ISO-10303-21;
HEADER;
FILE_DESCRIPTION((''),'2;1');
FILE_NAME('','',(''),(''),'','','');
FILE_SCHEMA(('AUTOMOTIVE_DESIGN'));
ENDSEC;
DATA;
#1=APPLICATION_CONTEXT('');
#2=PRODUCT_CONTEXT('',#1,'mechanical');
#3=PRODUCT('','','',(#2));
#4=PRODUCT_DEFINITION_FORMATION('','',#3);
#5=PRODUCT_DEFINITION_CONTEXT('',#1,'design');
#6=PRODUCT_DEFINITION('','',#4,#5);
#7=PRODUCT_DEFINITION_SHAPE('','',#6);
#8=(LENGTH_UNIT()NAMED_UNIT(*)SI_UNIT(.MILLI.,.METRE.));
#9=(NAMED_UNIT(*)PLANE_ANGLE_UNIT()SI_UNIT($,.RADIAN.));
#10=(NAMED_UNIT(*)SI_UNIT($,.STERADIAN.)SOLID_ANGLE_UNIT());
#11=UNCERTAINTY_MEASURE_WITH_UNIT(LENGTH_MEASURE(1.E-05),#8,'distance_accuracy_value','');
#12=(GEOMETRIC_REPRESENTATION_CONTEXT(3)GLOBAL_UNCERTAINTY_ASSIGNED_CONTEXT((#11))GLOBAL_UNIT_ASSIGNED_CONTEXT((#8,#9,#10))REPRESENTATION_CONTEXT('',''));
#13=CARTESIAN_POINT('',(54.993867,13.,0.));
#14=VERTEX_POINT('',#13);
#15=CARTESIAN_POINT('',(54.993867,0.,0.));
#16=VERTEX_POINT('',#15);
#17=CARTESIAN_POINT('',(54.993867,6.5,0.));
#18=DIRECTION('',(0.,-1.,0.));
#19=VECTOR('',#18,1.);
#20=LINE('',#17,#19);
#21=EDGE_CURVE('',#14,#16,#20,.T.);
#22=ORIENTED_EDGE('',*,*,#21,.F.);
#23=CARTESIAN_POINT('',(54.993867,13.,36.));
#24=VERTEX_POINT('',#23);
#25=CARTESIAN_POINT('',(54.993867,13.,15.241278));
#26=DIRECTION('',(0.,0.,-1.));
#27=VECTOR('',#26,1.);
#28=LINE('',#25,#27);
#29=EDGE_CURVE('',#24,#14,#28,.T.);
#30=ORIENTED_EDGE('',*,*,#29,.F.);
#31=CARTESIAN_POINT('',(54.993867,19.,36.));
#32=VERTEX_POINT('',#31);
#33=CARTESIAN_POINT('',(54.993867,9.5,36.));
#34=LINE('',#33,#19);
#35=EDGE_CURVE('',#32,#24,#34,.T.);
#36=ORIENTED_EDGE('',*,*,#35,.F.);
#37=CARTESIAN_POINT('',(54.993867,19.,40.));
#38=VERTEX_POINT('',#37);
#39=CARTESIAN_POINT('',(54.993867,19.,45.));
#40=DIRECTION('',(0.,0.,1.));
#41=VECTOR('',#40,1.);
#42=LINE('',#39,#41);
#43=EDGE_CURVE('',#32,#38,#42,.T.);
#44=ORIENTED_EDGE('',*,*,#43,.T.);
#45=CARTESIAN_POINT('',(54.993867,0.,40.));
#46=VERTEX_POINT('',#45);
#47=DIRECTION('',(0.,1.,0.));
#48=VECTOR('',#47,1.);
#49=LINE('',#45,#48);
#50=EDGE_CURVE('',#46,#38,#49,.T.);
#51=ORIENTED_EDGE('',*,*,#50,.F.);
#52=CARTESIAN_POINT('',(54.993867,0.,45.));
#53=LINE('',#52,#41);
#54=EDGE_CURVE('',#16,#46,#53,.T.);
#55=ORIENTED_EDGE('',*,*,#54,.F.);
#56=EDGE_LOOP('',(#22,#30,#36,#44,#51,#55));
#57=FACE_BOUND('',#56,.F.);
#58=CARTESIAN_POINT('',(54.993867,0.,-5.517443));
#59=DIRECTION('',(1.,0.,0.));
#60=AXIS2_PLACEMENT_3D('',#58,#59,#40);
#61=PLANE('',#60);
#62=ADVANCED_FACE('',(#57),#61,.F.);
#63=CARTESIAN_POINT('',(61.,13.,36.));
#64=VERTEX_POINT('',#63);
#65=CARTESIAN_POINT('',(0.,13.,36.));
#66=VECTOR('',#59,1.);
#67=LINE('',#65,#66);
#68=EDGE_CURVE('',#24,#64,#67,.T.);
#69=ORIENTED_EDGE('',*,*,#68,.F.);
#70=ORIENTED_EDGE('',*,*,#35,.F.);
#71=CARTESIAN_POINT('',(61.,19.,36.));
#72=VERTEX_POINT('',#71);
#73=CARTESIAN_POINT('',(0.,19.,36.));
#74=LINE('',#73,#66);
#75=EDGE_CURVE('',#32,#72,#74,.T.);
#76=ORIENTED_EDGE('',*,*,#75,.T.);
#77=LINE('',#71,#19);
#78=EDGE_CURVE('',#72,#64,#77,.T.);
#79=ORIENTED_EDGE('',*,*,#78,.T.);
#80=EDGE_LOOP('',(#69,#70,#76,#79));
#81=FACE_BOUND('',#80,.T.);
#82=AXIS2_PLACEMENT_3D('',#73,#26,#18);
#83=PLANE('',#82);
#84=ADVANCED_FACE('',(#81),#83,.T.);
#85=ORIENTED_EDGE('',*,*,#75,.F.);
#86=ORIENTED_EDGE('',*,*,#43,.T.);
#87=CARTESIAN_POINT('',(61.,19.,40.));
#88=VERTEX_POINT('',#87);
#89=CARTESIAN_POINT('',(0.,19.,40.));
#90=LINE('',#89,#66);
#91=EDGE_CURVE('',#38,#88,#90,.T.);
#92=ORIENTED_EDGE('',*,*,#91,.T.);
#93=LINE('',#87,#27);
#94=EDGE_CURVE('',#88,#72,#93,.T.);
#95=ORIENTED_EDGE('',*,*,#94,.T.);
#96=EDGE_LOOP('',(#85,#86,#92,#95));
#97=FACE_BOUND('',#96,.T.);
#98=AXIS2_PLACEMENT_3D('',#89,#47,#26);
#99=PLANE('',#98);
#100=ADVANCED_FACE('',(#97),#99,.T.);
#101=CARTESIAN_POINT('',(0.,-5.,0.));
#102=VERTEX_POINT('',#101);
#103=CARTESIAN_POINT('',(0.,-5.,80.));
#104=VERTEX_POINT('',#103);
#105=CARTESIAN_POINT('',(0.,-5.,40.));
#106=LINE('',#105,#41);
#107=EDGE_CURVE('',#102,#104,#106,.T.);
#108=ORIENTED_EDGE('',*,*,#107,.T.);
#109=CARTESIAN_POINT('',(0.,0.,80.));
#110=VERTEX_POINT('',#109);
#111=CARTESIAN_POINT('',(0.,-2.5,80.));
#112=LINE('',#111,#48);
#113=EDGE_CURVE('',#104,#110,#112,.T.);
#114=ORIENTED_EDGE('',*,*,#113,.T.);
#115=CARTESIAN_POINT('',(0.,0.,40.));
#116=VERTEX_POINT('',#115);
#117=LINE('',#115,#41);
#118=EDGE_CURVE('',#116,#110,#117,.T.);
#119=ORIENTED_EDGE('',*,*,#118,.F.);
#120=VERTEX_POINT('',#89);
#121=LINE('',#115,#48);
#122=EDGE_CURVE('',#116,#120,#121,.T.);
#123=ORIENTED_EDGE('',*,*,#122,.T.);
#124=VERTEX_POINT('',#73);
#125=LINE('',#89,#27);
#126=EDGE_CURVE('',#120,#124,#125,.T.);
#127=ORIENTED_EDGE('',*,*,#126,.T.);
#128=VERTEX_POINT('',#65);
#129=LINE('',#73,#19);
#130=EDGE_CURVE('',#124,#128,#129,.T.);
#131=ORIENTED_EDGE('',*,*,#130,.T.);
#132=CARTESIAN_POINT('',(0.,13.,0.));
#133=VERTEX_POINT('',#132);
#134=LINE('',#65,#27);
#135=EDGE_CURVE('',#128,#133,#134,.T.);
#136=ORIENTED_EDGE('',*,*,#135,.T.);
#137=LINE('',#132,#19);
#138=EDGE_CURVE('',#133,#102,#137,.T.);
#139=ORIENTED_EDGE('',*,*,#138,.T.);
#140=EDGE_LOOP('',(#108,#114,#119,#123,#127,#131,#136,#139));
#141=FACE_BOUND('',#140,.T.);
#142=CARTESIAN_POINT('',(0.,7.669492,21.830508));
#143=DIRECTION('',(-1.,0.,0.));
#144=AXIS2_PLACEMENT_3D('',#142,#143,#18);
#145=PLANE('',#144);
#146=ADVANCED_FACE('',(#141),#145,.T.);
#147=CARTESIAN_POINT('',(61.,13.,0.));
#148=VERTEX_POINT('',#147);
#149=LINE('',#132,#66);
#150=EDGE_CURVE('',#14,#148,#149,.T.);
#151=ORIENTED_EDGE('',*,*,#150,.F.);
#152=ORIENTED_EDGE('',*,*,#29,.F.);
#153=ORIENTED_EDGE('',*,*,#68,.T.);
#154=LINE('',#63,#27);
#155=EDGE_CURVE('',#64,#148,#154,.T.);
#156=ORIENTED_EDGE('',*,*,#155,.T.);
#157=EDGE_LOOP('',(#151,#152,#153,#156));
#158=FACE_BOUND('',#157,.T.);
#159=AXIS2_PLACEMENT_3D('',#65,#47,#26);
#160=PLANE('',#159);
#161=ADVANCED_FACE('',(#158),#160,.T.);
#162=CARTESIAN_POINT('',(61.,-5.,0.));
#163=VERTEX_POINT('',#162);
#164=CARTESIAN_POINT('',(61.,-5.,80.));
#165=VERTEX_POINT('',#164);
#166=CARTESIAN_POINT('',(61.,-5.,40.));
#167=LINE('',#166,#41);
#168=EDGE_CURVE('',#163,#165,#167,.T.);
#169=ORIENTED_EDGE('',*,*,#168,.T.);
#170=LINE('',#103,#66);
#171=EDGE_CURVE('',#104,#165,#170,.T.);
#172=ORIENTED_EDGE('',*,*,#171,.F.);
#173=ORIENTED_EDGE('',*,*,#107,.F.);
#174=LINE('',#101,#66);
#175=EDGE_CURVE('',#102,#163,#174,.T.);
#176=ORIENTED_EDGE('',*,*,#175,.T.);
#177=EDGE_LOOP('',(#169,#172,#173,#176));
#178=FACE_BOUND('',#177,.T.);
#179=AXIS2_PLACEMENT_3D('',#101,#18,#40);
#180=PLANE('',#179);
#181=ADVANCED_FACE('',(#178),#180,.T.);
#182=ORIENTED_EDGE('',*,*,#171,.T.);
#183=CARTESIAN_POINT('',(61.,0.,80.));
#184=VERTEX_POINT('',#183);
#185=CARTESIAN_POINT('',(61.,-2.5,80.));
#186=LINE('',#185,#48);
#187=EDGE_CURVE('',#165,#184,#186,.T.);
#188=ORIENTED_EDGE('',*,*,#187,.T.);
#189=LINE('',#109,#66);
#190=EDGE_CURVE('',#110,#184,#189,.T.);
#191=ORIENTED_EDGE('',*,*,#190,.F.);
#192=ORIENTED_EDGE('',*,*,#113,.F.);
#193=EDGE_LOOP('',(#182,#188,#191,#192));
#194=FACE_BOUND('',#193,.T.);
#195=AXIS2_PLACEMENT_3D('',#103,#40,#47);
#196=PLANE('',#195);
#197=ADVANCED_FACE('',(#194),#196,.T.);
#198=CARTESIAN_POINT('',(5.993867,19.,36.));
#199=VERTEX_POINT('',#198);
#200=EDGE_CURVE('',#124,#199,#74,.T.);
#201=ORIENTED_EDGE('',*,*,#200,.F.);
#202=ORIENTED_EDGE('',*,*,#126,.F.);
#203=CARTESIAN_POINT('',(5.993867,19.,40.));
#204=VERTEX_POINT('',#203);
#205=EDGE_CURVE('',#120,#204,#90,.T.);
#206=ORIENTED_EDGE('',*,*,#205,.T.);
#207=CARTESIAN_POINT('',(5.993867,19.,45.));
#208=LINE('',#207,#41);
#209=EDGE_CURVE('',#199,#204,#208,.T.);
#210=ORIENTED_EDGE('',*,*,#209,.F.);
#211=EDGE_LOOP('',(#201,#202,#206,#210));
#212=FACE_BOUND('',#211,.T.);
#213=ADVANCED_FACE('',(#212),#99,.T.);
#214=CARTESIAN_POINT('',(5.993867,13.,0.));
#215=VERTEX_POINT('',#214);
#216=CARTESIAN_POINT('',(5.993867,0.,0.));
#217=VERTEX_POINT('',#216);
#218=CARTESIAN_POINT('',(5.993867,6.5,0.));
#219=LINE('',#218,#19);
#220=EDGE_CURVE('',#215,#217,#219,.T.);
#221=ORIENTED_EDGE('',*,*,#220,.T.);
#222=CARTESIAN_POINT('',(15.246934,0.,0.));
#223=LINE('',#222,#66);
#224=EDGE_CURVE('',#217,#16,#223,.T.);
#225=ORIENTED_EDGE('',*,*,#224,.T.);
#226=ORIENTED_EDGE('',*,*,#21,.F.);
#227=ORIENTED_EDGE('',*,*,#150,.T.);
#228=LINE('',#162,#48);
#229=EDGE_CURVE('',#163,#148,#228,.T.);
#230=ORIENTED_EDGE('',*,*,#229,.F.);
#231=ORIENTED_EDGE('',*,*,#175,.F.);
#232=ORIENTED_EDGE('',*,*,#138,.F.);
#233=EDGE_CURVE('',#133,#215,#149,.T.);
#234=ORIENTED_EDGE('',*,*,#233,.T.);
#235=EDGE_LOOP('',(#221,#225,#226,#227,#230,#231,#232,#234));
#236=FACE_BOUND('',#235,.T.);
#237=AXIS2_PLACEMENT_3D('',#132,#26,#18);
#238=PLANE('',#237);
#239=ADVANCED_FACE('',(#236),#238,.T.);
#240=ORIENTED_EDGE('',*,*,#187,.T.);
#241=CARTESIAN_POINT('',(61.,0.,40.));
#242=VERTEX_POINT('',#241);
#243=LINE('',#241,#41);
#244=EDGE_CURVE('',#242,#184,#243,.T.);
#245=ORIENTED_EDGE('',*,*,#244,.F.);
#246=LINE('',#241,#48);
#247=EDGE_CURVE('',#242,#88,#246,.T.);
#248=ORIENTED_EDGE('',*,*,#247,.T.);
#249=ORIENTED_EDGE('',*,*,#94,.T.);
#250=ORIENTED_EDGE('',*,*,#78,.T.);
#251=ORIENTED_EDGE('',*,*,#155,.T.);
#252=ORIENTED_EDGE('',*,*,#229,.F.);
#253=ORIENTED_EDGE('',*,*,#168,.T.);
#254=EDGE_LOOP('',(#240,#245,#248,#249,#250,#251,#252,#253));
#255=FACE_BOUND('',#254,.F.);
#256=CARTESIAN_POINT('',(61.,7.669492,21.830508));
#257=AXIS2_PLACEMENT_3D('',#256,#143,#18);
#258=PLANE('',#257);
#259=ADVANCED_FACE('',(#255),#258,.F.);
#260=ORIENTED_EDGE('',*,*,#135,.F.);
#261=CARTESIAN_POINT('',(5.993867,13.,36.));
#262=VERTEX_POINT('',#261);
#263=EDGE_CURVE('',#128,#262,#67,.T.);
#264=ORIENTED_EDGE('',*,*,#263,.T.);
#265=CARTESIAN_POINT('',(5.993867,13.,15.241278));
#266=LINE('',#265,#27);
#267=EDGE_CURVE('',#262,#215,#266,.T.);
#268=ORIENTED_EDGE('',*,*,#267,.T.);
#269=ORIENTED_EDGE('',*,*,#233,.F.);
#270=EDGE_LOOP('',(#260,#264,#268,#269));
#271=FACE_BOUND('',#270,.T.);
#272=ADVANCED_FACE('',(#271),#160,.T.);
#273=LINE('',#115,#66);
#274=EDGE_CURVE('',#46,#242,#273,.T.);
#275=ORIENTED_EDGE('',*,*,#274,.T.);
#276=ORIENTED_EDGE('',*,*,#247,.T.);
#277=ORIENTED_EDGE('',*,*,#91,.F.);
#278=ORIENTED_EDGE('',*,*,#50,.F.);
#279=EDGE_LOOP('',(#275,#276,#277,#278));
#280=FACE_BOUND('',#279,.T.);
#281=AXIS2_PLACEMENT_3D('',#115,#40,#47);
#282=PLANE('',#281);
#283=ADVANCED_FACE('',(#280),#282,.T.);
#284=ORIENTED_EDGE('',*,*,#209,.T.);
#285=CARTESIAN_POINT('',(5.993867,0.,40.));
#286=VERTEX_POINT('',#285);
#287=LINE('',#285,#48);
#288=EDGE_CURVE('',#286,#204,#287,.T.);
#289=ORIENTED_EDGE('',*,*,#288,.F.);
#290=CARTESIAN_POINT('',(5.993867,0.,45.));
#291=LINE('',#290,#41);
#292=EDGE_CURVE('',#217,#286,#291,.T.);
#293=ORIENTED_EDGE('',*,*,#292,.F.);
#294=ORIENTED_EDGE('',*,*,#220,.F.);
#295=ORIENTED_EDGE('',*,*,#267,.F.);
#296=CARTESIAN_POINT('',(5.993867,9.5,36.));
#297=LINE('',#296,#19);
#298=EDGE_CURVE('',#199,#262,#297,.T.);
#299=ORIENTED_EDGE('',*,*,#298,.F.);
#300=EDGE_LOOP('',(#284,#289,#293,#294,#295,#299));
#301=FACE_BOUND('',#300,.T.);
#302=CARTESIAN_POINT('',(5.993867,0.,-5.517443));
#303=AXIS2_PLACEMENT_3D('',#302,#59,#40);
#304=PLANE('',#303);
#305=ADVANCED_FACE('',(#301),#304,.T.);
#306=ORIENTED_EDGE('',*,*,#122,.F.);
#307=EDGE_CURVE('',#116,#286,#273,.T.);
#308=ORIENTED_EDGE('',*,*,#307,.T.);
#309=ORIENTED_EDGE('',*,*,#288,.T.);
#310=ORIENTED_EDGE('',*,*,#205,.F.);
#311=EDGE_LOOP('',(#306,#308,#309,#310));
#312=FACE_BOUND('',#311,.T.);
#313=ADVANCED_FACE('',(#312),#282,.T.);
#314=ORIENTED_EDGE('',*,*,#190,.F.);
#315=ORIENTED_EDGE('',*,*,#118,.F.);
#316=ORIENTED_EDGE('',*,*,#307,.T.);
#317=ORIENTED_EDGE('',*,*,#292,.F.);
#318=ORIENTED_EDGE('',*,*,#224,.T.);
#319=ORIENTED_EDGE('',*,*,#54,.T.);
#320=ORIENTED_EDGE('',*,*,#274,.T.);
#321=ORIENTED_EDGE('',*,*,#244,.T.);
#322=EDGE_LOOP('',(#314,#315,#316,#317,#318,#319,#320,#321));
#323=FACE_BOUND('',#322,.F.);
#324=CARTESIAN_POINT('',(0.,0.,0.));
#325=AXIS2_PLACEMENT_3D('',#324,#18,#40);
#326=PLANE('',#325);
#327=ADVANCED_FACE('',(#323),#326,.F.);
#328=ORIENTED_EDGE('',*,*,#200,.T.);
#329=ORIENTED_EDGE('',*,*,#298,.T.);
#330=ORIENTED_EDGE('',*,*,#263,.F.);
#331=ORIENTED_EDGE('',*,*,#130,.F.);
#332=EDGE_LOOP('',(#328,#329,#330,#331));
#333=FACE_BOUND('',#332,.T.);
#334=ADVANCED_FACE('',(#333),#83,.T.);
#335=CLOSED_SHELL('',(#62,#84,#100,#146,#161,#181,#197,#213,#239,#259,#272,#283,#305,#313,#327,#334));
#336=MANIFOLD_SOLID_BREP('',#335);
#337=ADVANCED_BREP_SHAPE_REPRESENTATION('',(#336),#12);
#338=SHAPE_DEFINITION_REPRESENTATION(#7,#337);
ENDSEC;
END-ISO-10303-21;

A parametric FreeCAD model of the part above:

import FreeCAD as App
import Part
import Sketcher
from FreeCAD import Vector

doc = App.newDocument("Part")
body = doc.addObject("PartDesign::Body", "Body")

# Sketch on YZ plane
sketch1 = body.newObject("Sketcher::SketchObject", "Sketch")
sketch1.AttachmentSupport = (doc.getObject("YZ_Plane"), [""])
sketch1.MapMode = "FlatFace"
sketch1.addGeometry([
    Part.LineSegment(Vector(-5, 80, 0), Vector(-5, 0, 0)),
    Part.LineSegment(Vector(-5, 0, 0), Vector(0, 0, 0)),
    Part.LineSegment(Vector(0, 0, 0), Vector(0, 80, 0)),
    Part.LineSegment(Vector(0, 80, 0), Vector(-5, 80, 0)),
], False)
sketch1.addConstraint([
    Sketcher.Constraint("Coincident", 0, 2, 1, 1),
    Sketcher.Constraint("Coincident", 1, 2, 2, 1),
    Sketcher.Constraint("Coincident", 2, 2, 3, 1),
    Sketcher.Constraint("Coincident", 3, 2, 0, 1),
    Sketcher.Constraint("Vertical", 0),
    Sketcher.Constraint("Horizontal", 1),
    Sketcher.Constraint("Vertical", 2),
    Sketcher.Constraint("Horizontal", 3),
    Sketcher.Constraint("Coincident", 1, 2, -1, 1),
    Sketcher.Constraint("DistanceX", 1, 1, 1, 2, 5.0),
    Sketcher.Constraint("DistanceY", 0, 2, 0, 1, 80.0),
])
pad1 = body.newObject("PartDesign::Pad", "Pad")
pad1.Profile = sketch1
pad1.Length = 61

# Sketch on YZ plane
sketch2 = body.newObject("Sketcher::SketchObject", "Sketch001")
sketch2.AttachmentSupport = (doc.getObject("YZ_Plane"), [""])
sketch2.MapMode = "FlatFace"
sketch2.addGeometry([
    Part.LineSegment(Vector(0, 0, 0), Vector(0, 40, 0)),  # 0
    Part.LineSegment(Vector(0, 40, 0), Vector(19, 40, 0)),  # 1
    Part.LineSegment(Vector(19, 40, 0), Vector(19, 36, 0)),  # 2
    Part.LineSegment(Vector(19, 36, 0), Vector(13, 36, 0)),  # 3
    Part.LineSegment(Vector(13, 36, 0), Vector(13, 0, 0)),  # 4
    Part.LineSegment(Vector(13, 0, 0), Vector(0, 0, 0)),  # 5
], False)
sketch2.addConstraint([
    Sketcher.Constraint("Coincident", 0, 2, 1, 1),
    Sketcher.Constraint("Coincident", 1, 2, 2, 1),
    Sketcher.Constraint("Coincident", 2, 2, 3, 1),
    Sketcher.Constraint("Coincident", 3, 2, 4, 1),
    Sketcher.Constraint("Coincident", 4, 2, 5, 1),
    Sketcher.Constraint("Coincident", 5, 2, 0, 1),
    Sketcher.Constraint("Vertical", 0),
    Sketcher.Constraint("Horizontal", 1),
    Sketcher.Constraint("Vertical", 2),
    Sketcher.Constraint("Horizontal", 3),
    Sketcher.Constraint("Vertical", 4),
    Sketcher.Constraint("Horizontal", 5),
    Sketcher.Constraint("Coincident", 5, 2, -1, 1),
    Sketcher.Constraint("DistanceX", 1, 1, 1, 2, 19.0),
    Sketcher.Constraint("DistanceX", 3, 2, 3, 1, 6.0),
    Sketcher.Constraint("DistanceY", 0, 1, 0, 2, 40.0),
    Sketcher.Constraint("DistanceY", 2, 2, 2, 1, 4.0),
])
pad2 = body.newObject("PartDesign::Pad", "Pad001")
pad2.Profile = sketch2
pad2.Length = 61

# Sketch on XZ plane
sketch3 = body.newObject("Sketcher::SketchObject", "Sketch002")
sketch3.AttachmentSupport = (doc.getObject("XZ_Plane"), [""])
sketch3.MapMode = "FlatFace"
sketch3.addGeometry([
    Part.LineSegment(Vector(55, 96, 0), Vector(55, -6, 0)),
    Part.LineSegment(Vector(55, -6, 0), Vector(6, -6, 0)),
    Part.LineSegment(Vector(6, -6, 0), Vector(6, 96, 0)),
    Part.LineSegment(Vector(6, 96, 0), Vector(55, 96, 0)),
], False)
sketch3.addConstraint([
    Sketcher.Constraint("Coincident", 0, 2, 1, 1),
    Sketcher.Constraint("Coincident", 1, 2, 2, 1),
    Sketcher.Constraint("Coincident", 2, 2, 3, 1),
    Sketcher.Constraint("Coincident", 3, 2, 0, 1),
    Sketcher.Constraint("Vertical", 0),
    Sketcher.Constraint("Horizontal", 1),
    Sketcher.Constraint("Vertical", 2),
    Sketcher.Constraint("Horizontal", 3),
    Sketcher.Constraint("DistanceX", 1, 2, 1, 1, 49.0),
    Sketcher.Constraint("DistanceY", 0, 2, 0, 1, 101.034886),
    Sketcher.Constraint("DistanceX", -1, 1, 0, 2, 54.993867),
    Sketcher.Constraint("DistanceY", 0, 2, -1, 1, 5.517443),
])
pocket1 = body.newObject("PartDesign::Pocket", "Pocket")
pocket1.Profile = sketch3
pocket1.Length = 19

doc.recompute()
